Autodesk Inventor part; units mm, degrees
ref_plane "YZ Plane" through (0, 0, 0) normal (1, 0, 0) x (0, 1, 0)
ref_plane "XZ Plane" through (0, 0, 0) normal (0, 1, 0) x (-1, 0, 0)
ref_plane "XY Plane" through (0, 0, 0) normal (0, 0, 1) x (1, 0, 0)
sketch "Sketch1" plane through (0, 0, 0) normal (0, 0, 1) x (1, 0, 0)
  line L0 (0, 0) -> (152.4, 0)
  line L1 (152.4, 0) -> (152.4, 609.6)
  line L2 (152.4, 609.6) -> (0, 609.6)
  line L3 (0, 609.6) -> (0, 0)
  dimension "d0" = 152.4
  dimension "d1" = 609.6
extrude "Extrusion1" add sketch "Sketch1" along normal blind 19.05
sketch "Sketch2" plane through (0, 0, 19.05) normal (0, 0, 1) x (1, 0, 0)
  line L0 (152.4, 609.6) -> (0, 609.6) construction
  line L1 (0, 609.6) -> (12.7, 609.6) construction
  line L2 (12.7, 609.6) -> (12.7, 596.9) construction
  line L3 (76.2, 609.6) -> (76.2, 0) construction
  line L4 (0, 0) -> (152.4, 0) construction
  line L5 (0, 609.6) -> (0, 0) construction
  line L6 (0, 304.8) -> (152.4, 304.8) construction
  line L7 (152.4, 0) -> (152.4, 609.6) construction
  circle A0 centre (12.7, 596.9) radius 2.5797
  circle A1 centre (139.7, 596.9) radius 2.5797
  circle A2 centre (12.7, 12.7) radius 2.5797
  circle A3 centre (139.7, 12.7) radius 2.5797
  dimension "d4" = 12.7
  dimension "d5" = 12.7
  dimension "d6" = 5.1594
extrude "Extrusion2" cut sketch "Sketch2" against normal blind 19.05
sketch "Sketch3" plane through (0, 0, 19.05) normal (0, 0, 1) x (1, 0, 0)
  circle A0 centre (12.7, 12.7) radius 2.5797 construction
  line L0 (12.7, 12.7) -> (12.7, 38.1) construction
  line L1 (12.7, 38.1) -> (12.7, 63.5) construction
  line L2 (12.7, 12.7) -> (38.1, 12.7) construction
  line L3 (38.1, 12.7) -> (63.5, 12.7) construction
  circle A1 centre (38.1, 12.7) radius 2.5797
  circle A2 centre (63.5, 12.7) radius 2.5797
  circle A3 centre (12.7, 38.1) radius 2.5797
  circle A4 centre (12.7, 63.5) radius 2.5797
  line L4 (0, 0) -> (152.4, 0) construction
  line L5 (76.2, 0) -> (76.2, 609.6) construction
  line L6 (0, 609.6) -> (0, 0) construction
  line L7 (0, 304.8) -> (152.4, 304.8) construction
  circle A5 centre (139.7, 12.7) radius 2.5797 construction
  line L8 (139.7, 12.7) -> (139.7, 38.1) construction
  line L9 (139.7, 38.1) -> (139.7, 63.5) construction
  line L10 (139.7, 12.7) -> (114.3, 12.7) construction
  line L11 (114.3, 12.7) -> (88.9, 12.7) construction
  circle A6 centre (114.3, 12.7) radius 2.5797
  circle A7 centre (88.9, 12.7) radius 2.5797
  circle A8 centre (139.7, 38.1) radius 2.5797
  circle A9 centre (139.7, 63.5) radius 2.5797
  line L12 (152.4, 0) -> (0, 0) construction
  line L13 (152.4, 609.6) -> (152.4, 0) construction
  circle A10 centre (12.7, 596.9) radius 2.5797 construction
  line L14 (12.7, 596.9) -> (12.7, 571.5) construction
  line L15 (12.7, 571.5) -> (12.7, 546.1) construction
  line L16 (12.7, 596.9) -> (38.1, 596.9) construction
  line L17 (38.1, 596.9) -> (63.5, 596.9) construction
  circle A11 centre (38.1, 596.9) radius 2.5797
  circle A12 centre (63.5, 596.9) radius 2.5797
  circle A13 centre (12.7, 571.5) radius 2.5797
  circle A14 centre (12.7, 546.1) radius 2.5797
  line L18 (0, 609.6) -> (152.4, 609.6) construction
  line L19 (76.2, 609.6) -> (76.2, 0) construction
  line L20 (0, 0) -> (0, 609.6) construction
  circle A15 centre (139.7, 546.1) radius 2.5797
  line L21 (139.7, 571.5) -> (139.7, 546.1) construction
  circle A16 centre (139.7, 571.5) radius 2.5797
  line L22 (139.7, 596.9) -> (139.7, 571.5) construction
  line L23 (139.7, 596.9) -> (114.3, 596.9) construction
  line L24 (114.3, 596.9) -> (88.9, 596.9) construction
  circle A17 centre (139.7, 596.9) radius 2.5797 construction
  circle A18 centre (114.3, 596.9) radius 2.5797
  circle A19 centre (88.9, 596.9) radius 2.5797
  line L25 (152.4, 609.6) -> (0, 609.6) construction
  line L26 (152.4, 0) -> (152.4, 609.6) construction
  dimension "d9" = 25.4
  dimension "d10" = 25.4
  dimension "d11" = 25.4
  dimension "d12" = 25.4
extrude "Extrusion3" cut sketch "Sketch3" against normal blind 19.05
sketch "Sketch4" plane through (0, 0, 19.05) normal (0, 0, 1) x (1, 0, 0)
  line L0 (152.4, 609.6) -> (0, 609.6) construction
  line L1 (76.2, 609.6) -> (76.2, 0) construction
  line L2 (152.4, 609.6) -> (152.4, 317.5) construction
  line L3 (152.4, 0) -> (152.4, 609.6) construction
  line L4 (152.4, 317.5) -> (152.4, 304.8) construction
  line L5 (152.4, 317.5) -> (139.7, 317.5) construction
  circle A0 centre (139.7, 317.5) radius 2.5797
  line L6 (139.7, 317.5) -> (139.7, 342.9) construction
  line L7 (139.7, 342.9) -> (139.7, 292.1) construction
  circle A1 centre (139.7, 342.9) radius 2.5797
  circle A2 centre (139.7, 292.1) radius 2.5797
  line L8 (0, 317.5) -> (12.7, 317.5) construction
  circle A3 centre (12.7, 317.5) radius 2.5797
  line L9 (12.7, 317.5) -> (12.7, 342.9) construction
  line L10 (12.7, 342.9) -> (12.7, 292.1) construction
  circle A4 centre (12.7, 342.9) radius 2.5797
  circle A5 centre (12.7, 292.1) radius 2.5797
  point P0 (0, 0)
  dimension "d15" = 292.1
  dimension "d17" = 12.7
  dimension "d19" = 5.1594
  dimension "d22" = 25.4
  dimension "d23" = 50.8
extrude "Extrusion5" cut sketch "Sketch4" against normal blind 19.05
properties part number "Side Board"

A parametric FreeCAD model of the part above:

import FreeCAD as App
import Part
import Sketcher
from FreeCAD import Vector
Q = App.Units.Quantity

doc = App.newDocument("Part")
params = doc.addObject("Spreadsheet::Sheet", "Params")
for row, (alias, value) in enumerate([
    ("sketch1_width", "6 in"),
    ("sketch1_height", "24 in"),
    ("pad1_length", "0.75 in"),
    ("sketch2_diameter", "0.203126 in"),
    ("pocket1_length", "0.75 in"),
    ("sketch3_diameter", "0.203126 in"),
    ("pocket2_length", "0.75 in"),
    ("sketch4_diameter", "0.203126 in"),
    ("pocket3_length", "0.75 in"),
], start=1):
    params.set(f"A{row}", alias)
    params.set(f"B{row}", "=" + value)
    params.setAlias(f"B{row}", alias)

body = doc.addObject("PartDesign::Body", "Body")

sketch1 = body.newObject("Sketcher::SketchObject", "Sketch")
sketch1.AttachmentSupport = (doc.getObject("XY_Plane"), [""])
sketch1.MapMode = "FlatFace"
sketch1.addGeometry(Part.LineSegment(Vector(0, 610, 0), Vector(0, 0, 0)), False)
sketch1.addGeometry(Part.LineSegment(Vector(0, 0, 0), Vector(152, 0, 0)), False)
sketch1.addGeometry(Part.LineSegment(Vector(152, 0, 0), Vector(152, 610, 0)), False)
sketch1.addGeometry(Part.LineSegment(Vector(152, 610, 0), Vector(0, 610, 0)), False)
sketch1.addConstraint(Sketcher.Constraint("Coincident", 0, 2, 1, 1))
sketch1.addConstraint(Sketcher.Constraint("Coincident", 1, 2, 2, 1))
sketch1.addConstraint(Sketcher.Constraint("Coincident", 2, 2, 3, 1))
sketch1.addConstraint(Sketcher.Constraint("Coincident", 3, 2, 0, 1))
sketch1.addConstraint(Sketcher.Constraint("Vertical", 0))
sketch1.addConstraint(Sketcher.Constraint("Horizontal", 1))
sketch1.addConstraint(Sketcher.Constraint("Vertical", 2))
sketch1.addConstraint(Sketcher.Constraint("Horizontal", 3))
sketch1.addConstraint(Sketcher.Constraint("Coincident", 0, 2, -1, 1))
sketch1.addConstraint(Sketcher.Constraint("DistanceX", 1, 1, 1, 2, Q("6 in")))
sketch1.addConstraint(Sketcher.Constraint("DistanceY", 0, 2, 0, 1, Q("24 in")))
sketch1.setExpression("Constraints[9]", "Params.sketch1_width")
sketch1.setExpression("Constraints[10]", "Params.sketch1_height")
pad1 = body.newObject("PartDesign::Pad", "Pad")
pad1.Profile = sketch1
pad1.setExpression("Length", "Params.pad1_length")

sketch2 = body.newObject("Sketcher::SketchObject", "Sketch001")
sketch2.AttachmentSupport = (doc.getObject("XY_Plane"), [""])
sketch2.MapMode = "FlatFace"
sketch2.AttachmentOffset = App.Placement(Vector(0, 0, 0.75 * 25.4), App.Rotation())
sketch2.addGeometry(Part.Circle(Vector(12.7, 596.9, 0), Vector(0, 0, 1), 2.6), False)
sketch2.addGeometry(Part.Circle(Vector(139.7, 596.9, 0), Vector(0, 0, 1), 2.6), False)
sketch2.addGeometry(Part.Circle(Vector(12.7, 12.7, 0), Vector(0, 0, 1), 2.6), False)
sketch2.addGeometry(Part.Circle(Vector(139.7, 12.7, 0), Vector(0, 0, 1), 2.6), False)
sketch2.addConstraint(Sketcher.Constraint("Equal", 0, 1))
sketch2.addConstraint(Sketcher.Constraint("Equal", 1, 2))
sketch2.addConstraint(Sketcher.Constraint("Equal", 2, 3))
sketch2.addConstraint(Sketcher.Constraint("Horizontal", 0, 3, 1, 3))
sketch2.addConstraint(Sketcher.Constraint("Horizontal", 2, 3, 3, 3))
sketch2.addConstraint(Sketcher.Constraint("Vertical", 0, 3, 2, 3))
sketch2.addConstraint(Sketcher.Constraint("Vertical", 1, 3, 3, 3))
sketch2.addConstraint(Sketcher.Constraint("Diameter", 0, Q("0.203126 in")))
sketch2.addConstraint(Sketcher.Constraint("DistanceX", -1, 1, 0, 3, Q("0.5 in")))
sketch2.addConstraint(Sketcher.Constraint("DistanceY", -1, 1, 2, 3, Q("0.5 in")))
sketch2.addConstraint(Sketcher.Constraint("DistanceX", 0, 3, 1, 3, Q("5 in")))
sketch2.addConstraint(Sketcher.Constraint("DistanceY", 2, 3, 0, 3, Q("23 in")))
sketch2.setExpression("Constraints[7]", "Params.sketch2_diameter")
pocket1 = body.newObject("PartDesign::Pocket", "Pocket")
pocket1.Profile = sketch2
pocket1.setExpression("Length", "Params.pocket1_length")

sketch3 = body.newObject("Sketcher::SketchObject", "Sketch002")
sketch3.AttachmentSupport = (doc.getObject("XY_Plane"), [""])
sketch3.MapMode = "FlatFace"
sketch3.AttachmentOffset = App.Placement(Vector(0, 0, 0.75 * 25.4), App.Rotation())
sketch3.addGeometry(Part.Circle(Vector(38.1, 12.7, 0), Vector(0, 0, 1), 2.6), False)
sketch3.addGeometry(Part.Circle(Vector(63.5, 12.7, 0), Vector(0, 0, 1), 2.6), False)
sketch3.addGeometry(Part.Circle(Vector(12.7, 38.1, 0), Vector(0, 0, 1), 2.6), False)
sketch3.addGeometry(Part.Circle(Vector(12.7, 63.5, 0), Vector(0, 0, 1), 2.6), False)
sketch3.addGeometry(Part.Circle(Vector(114.3, 12.7, 0), Vector(0, 0, 1), 2.6), False)
sketch3.addGeometry(Part.Circle(Vector(88.9, 12.7, 0), Vector(0, 0, 1), 2.6), False)
sketch3.addGeometry(Part.Circle(Vector(139.7, 38.1, 0), Vector(0, 0, 1), 2.6), False)
sketch3.addGeometry(Part.Circle(Vector(139.7, 63.5, 0), Vector(0, 0, 1), 2.6), False)
sketch3.addGeometry(Part.Circle(Vector(38.1, 596.9, 0), Vector(0, 0, 1), 2.6), False)
sketch3.addGeometry(Part.Circle(Vector(63.5, 596.9, 0), Vector(0, 0, 1), 2.6), False)
sketch3.addGeometry(Part.Circle(Vector(12.7, 571.5, 0), Vector(0, 0, 1), 2.6), False)
sketch3.addGeometry(Part.Circle(Vector(12.7, 546.1, 0), Vector(0, 0, 1), 2.6), False)
sketch3.addGeometry(Part.Circle(Vector(139.7, 546.1, 0), Vector(0, 0, 1), 2.6), False)
sketch3.addGeometry(Part.Circle(Vector(139.7, 571.5, 0), Vector(0, 0, 1), 2.6), False)
sketch3.addGeometry(Part.Circle(Vector(114.3, 596.9, 0), Vector(0, 0, 1), 2.6), False)
sketch3.addGeometry(Part.Circle(Vector(88.9, 596.9, 0), Vector(0, 0, 1), 2.6), False)
sketch3.addConstraint(Sketcher.Constraint("Equal", 0, 1))
sketch3.addConstraint(Sketcher.Constraint("Equal", 1, 2))
sketch3.addConstraint(Sketcher.Constraint("Equal", 2, 3))
sketch3.addConstraint(Sketcher.Constraint("Equal", 3, 4))
sketch3.addConstraint(Sketcher.Constraint("Equal", 4, 5))
sketch3.addConstraint(Sketcher.Constraint("Equal", 5, 6))
sketch3.addConstraint(Sketcher.Constraint("Equal", 6, 7))
sketch3.addConstraint(Sketcher.Constraint("Equal", 7, 8))
sketch3.addConstraint(Sketcher.Constraint("Equal", 8, 9))
sketch3.addConstraint(Sketcher.Constraint("Equal", 9, 10))
sketch3.addConstraint(Sketcher.Constraint("Equal", 10, 11))
sketch3.addConstraint(Sketcher.Constraint("Equal", 11, 12))
sketch3.addConstraint(Sketcher.Constraint("Equal", 12, 13))
sketch3.addConstraint(Sketcher.Constraint("Equal", 13, 14))
sketch3.addConstraint(Sketcher.Constraint("Equal", 14, 15))
sketch3.addConstraint(Sketcher.Constraint("Horizontal", 0, 3, 1, 3))
sketch3.addConstraint(Sketcher.Constraint("Horizontal", 1, 3, 4, 3))
sketch3.addConstraint(Sketcher.Constraint("Horizontal", 4, 3, 5, 3))
sketch3.addConstraint(Sketcher.Constraint("Horizontal", 2, 3, 6, 3))
sketch3.addConstraint(Sketcher.Constraint("Horizontal", 3, 3, 7, 3))
sketch3.addConstraint(Sketcher.Constraint("Horizontal", 8, 3, 9, 3))
sketch3.addConstraint(Sketcher.Constraint("Horizontal", 11, 3, 12, 3))
sketch3.addConstraint(Sketcher.Constraint("Horizontal", 10, 3, 13, 3))
sketch3.addConstraint(Sketcher.Constraint("Horizontal", 9, 3, 14, 3))
sketch3.addConstraint(Sketcher.Constraint("Horizontal", 14, 3, 15, 3))
sketch3.addConstraint(Sketcher.Constraint("Vertical", 2, 3, 3, 3))
sketch3.addConstraint(Sketcher.Constraint("Vertical", 6, 3, 7, 3))
sketch3.addConstraint(Sketcher.Constraint("Vertical", 0, 3, 8, 3))
sketch3.addConstraint(Sketcher.Constraint("Vertical", 1, 3, 9, 3))
sketch3.addConstraint(Sketcher.Constraint("Vertical", 3, 3, 10, 3))
sketch3.addConstraint(Sketcher.Constraint("Vertical", 10, 3, 11, 3))
sketch3.addConstraint(Sketcher.Constraint("Vertical", 7, 3, 12, 3))
sketch3.addConstraint(Sketcher.Constraint("Vertical", 12, 3, 13, 3))
sketch3.addConstraint(Sketcher.Constraint("Vertical", 4, 3, 14, 3))
sketch3.addConstraint(Sketcher.Constraint("Vertical", 5, 3, 15, 3))
sketch3.addConstraint(Sketcher.Constraint("DistanceX", 0, 3, 1, 3, Q("1 in")))
sketch3.addConstraint(Sketcher.Constraint("DistanceX", 2, 3, 0, 3, Q("1 in")))
sketch3.addConstraint(Sketcher.Constraint("DistanceY", 0, 3, 2, 3, Q("1 in")))
sketch3.addConstraint(Sketcher.Constraint("DistanceY", 2, 3, 3, 3, Q("1 in")))
sketch3.addConstraint(Sketcher.Constraint("DistanceX", 5, 3, 4, 3, Q("1 in")))
sketch3.addConstraint(Sketcher.Constraint("DistanceX", 1, 3, 5, 3, Q("1 in")))
sketch3.addConstraint(Sketcher.Constraint("DistanceX", 4, 3, 6, 3, Q("1 in")))
sketch3.addConstraint(Sketcher.Constraint("DistanceY", 10, 3, 8, 3, Q("1 in")))
sketch3.addConstraint(Sketcher.Constraint("DistanceY", 11, 3, 10, 3, Q("1 in")))
sketch3.addConstraint(Sketcher.Constraint("Diameter", 0, Q("0.203126 in")))
sketch3.addConstraint(Sketcher.Constraint("DistanceY", 3, 3, 8, 3, Q("21 in")))
sketch3.addConstraint(Sketcher.Constraint("DistanceX", -1, 1, 0, 3, Q("1.5 in")))
sketch3.addConstraint(Sketcher.Constraint("DistanceY", -1, 1, 0, 3, Q("0.5 in")))
sketch3.setExpression("Constraints[44]", "Params.sketch3_diameter")
pocket2 = body.newObject("PartDesign::Pocket", "Pocket001")
pocket2.Profile = sketch3
pocket2.setExpression("Length", "Params.pocket2_length")

sketch4 = body.newObject("Sketcher::SketchObject", "Sketch003")
sketch4.AttachmentSupport = (doc.getObject("XY_Plane"), [""])
sketch4.MapMode = "FlatFace"
sketch4.AttachmentOffset = App.Placement(Vector(0, 0, 0.75 * 25.4), App.Rotation())
sketch4.addGeometry(Part.Circle(Vector(139.7, 317.5, 0), Vector(0, 0, 1), 2.6), False)
sketch4.addGeometry(Part.Circle(Vector(139.7, 342.9, 0), Vector(0, 0, 1), 2.6), False)
sketch4.addGeometry(Part.Circle(Vector(139.7, 292.1, 0), Vector(0, 0, 1), 2.6), False)
sketch4.addGeometry(Part.Circle(Vector(12.7, 317.5, 0), Vector(0, 0, 1), 2.6), False)
sketch4.addGeometry(Part.Circle(Vector(12.7, 342.9, 0), Vector(0, 0, 1), 2.6), False)
sketch4.addGeometry(Part.Circle(Vector(12.7, 292.1, 0), Vector(0, 0, 1), 2.6), False)
sketch4.addConstraint(Sketcher.Constraint("Equal", 0, 1))
sketch4.addConstraint(Sketcher.Constraint("Equal", 1, 2))
sketch4.addConstraint(Sketcher.Constraint("Equal", 2, 3))
sketch4.addConstraint(Sketcher.Constraint("Equal", 3, 4))
sketch4.addConstraint(Sketcher.Constraint("Equal", 4, 5))
sketch4.addConstraint(Sketcher.Constraint("Horizontal", 0, 3, 3, 3))
sketch4.addConstraint(Sketcher.Constraint("Horizontal", 1, 3, 4, 3))
sketch4.addConstraint(Sketcher.Constraint("Horizontal", 2, 3, 5, 3))
sketch4.addConstraint(Sketcher.Constraint("Vertical", 0, 3, 1, 3))
sketch4.addConstraint(Sketcher.Constraint("Vertical", 1, 3, 2, 3))
sketch4.addConstraint(Sketcher.Constraint("Vertical", 3, 3, 4, 3))
sketch4.addConstraint(Sketcher.Constraint("Vertical", 4, 3, 5, 3))
sketch4.addConstraint(Sketcher.Constraint("Diameter", 0, Q("0.203126 in")))
sketch4.addConstraint(Sketcher.Constraint("DistanceY", 0, 3, 1, 3, Q("1 in")))
sketch4.addConstraint(Sketcher.Constraint("DistanceY", 2, 3, 0, 3, Q("1 in")))
sketch4.addConstraint(Sketcher.Constraint("DistanceY", -1, 1, 2, 3, Q("11.5 in")))
sketch4.addConstraint(Sketcher.Constraint("DistanceX", -1, 1, 3, 3, Q("0.5 in")))
sketch4.addConstraint(Sketcher.Constraint("DistanceX", 3, 3, 0, 3, Q("5 in")))
sketch4.setExpression("Constraints[12]", "Params.sketch4_diameter")
pocket3 = body.newObject("PartDesign::Pocket", "Pocket002")
pocket3.Profile = sketch4
pocket3.setExpression("Length", "Params.pocket3_length")

doc.recompute()
